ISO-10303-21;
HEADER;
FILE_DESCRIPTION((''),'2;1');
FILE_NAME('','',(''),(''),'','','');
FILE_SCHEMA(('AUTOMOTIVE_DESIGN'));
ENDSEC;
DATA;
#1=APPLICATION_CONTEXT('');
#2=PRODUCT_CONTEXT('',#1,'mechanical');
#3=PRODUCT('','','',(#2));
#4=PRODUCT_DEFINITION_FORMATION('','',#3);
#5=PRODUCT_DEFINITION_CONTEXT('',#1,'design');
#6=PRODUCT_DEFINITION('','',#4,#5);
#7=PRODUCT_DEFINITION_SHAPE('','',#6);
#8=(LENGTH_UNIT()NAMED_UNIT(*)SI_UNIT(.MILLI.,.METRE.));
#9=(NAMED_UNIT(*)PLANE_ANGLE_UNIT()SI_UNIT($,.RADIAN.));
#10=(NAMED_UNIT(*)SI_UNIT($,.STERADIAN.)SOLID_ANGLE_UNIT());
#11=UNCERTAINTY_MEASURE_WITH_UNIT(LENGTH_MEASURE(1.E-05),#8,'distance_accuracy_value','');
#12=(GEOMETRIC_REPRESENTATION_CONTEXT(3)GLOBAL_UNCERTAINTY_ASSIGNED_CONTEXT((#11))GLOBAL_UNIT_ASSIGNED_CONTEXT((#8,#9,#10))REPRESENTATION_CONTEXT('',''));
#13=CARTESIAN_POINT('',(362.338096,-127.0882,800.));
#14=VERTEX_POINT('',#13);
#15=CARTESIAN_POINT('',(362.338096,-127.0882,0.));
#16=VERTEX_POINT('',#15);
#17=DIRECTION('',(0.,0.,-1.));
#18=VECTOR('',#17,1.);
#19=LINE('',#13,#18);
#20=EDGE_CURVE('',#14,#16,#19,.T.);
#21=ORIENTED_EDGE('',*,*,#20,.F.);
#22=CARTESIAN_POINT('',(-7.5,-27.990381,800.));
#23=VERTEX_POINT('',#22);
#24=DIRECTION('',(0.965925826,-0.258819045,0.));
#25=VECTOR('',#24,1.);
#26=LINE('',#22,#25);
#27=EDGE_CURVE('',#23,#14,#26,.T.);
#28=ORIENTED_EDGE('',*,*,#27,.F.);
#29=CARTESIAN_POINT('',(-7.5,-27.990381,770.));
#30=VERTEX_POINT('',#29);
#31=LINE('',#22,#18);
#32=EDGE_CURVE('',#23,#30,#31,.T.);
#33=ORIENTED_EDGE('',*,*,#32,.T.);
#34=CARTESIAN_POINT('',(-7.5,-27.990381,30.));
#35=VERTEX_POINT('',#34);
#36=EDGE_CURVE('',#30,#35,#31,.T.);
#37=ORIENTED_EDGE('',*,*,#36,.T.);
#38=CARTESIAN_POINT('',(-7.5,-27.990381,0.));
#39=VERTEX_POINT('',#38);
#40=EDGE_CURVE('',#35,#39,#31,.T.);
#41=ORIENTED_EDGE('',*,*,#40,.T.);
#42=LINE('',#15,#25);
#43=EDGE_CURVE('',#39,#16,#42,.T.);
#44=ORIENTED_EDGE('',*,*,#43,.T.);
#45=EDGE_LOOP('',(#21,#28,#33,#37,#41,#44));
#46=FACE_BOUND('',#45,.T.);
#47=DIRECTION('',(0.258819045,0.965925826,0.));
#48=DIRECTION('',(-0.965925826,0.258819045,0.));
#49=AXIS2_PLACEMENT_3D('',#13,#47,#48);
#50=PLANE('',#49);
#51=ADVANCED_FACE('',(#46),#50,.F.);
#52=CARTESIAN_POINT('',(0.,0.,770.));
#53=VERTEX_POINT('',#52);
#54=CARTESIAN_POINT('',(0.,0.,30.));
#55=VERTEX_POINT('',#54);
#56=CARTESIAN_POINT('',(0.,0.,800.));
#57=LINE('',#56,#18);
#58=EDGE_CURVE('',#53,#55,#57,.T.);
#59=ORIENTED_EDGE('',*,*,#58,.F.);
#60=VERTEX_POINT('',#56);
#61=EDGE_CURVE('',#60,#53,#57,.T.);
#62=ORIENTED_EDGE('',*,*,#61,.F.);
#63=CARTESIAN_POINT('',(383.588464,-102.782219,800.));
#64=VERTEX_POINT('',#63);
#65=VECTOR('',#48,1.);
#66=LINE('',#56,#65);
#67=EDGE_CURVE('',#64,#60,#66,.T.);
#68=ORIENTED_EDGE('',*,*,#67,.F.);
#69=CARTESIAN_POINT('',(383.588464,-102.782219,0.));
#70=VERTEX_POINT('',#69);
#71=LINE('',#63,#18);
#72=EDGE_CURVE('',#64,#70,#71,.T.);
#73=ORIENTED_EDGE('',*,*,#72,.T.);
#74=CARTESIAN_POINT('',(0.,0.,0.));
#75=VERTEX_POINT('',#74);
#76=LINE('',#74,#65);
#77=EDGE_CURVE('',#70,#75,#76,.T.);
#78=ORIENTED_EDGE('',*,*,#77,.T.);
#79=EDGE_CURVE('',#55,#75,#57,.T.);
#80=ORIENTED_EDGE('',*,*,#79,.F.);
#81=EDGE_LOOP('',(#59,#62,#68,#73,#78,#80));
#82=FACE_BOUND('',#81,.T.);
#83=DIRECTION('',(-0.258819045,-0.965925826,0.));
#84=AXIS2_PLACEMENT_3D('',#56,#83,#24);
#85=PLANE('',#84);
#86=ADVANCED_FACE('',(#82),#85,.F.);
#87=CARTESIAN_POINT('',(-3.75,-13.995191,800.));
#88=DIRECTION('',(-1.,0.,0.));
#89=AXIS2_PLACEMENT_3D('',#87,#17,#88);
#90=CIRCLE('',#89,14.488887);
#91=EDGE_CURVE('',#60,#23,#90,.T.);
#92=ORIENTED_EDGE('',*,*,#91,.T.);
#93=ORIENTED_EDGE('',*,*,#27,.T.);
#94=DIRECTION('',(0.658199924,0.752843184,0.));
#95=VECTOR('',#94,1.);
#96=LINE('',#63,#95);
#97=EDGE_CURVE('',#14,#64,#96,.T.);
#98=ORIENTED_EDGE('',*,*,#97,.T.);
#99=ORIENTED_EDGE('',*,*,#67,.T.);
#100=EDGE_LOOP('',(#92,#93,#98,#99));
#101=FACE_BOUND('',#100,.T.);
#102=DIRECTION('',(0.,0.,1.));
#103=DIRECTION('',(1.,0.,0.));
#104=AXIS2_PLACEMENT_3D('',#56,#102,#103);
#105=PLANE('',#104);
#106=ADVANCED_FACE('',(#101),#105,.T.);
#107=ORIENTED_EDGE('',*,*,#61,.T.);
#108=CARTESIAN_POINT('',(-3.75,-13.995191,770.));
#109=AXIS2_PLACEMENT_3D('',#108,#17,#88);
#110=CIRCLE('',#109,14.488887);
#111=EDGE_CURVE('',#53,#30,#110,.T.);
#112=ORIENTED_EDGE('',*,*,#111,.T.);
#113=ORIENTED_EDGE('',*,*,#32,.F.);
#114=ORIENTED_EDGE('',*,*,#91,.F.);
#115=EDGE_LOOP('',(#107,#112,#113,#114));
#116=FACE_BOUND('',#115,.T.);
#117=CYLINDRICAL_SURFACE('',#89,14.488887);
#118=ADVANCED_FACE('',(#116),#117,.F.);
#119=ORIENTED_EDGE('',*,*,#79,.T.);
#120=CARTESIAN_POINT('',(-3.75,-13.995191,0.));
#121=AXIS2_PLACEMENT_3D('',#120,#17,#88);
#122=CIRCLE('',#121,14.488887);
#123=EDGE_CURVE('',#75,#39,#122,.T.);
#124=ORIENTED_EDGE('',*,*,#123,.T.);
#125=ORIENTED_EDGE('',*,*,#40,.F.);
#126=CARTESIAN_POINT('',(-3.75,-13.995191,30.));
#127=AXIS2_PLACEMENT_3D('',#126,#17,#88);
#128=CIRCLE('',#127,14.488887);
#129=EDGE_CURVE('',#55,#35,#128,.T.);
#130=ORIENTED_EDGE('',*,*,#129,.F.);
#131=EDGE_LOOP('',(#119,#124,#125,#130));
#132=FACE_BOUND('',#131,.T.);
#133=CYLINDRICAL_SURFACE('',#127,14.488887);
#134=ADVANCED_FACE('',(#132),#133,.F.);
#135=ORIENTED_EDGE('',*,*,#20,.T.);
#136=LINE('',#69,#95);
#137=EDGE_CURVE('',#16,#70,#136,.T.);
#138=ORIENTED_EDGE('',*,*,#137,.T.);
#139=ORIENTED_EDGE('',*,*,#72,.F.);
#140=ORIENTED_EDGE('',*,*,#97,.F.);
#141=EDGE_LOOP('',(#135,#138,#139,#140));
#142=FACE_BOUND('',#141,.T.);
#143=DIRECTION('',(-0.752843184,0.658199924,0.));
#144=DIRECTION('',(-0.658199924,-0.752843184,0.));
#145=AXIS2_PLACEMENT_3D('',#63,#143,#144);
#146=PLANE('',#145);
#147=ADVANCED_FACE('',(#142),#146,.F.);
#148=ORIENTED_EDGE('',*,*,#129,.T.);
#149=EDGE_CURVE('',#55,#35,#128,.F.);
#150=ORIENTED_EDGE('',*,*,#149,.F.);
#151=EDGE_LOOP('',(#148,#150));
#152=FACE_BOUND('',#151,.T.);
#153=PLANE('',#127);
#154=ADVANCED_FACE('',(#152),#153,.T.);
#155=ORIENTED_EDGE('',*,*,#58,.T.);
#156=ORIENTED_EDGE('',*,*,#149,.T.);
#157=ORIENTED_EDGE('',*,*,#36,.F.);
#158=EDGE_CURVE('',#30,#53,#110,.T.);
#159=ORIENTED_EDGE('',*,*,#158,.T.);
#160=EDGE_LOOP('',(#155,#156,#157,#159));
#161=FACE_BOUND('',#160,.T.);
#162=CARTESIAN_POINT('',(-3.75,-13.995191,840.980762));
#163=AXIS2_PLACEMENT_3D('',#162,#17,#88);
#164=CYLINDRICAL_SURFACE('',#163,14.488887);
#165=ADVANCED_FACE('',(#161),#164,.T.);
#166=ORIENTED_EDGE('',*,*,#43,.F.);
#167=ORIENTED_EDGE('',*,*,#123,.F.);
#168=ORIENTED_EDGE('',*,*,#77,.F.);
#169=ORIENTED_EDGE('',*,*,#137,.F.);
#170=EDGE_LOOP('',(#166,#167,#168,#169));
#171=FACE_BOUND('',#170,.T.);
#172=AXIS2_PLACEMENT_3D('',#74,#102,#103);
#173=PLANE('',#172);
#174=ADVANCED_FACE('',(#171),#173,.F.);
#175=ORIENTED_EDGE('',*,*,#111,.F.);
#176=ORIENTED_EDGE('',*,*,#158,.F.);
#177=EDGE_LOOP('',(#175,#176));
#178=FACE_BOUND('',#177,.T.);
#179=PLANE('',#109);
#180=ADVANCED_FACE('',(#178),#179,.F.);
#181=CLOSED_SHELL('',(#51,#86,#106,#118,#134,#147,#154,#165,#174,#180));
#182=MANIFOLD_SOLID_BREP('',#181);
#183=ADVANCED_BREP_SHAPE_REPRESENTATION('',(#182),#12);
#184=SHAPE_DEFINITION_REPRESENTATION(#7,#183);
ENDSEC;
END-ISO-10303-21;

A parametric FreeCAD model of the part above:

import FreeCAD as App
import Part
import Sketcher
Q = App.Units.Quantity


def add_polygon(sketch, points):
    """Adds a closed chain of lines whose ends are joined by coincident constraints."""
    first, n = sketch.GeometryCount, len(points)
    for a, b in zip(points, points[1:] + points[:1]):
        sketch.addGeometry(Part.LineSegment(App.Vector(*a, 0), App.Vector(*b, 0)), False)
    for i in range(n):
        sketch.addConstraint(Sketcher.Constraint("Coincident", first + i, 2, first + (i + 1) % n, 1))

doc = App.newDocument("Part")
body = doc.addObject("PartDesign::Body", "Body")

# Sketch on XY plane
sketch1 = doc.addObject("Sketcher::SketchObject", "Sketch")
body.addObject(sketch1)
sketch1.AttachmentSupport = (doc.XY_Plane, [""])
sketch1.MapMode = "FlatFace"
add_polygon(sketch1, [(384, -103), (0, 0), (-8, -28), (0, -30), (362, -127)])  # lines 0-4
sketch1.addConstraint([
    Sketcher.Constraint("Coincident", 0, 2, -1, 1),
    Sketcher.Constraint("PointOnObject", 2, 2, -2),
    Sketcher.Constraint("Perpendicular", 0, 1),
    Sketcher.Constraint("Perpendicular", 1, 2),
    Sketcher.Constraint("Parallel", 2, 3),
    Sketcher.Constraint("Angle", 0, Q("165 deg")),
    Sketcher.Constraint("DistanceY", 2, 2, -1, 1, Q("30 mm")),
    Sketcher.Constraint("Distance", 0, Q("397.12 mm")),
    Sketcher.Constraint("Distance", 3, Q("375.12 mm")),
])
pad1 = doc.addObject("PartDesign::Pad", "Pad")
body.addObject(pad1)
pad1.Profile = sketch1
pad1.Length = 800

# Sketch on XY plane
sketch2 = doc.addObject("Sketcher::SketchObject", "Sketch001")
body.addObject(sketch2)
sketch2.AttachmentSupport = (doc.XY_Plane, [""])
sketch2.MapMode = "FlatFace"
sketch2.addGeometry(Part.Circle(App.Vector(-4, -14, 0), App.Vector(0, 0, 1), 14), False)
sketch2.addConstraint([
    Sketcher.Constraint("DistanceX", 0, 3, -1, 1, Q("3.75 mm")),
    Sketcher.Constraint("Diameter", 0, Q("28.977775 mm")),
    Sketcher.Constraint("DistanceY", 0, 3, -1, 1, Q("13.995191 mm")),
])
pad2 = doc.addObject("PartDesign::Pad", "Pad001")
body.addObject(pad2)
pad2.Profile = sketch2
pad2.Length = 800

# Sketch on XY plane
sketch3 = doc.addObject("Sketcher::SketchObject", "Sketch002")
body.addObject(sketch3)
sketch3.AttachmentSupport = (doc.XY_Plane, [""])
sketch3.MapMode = "FlatFace"
sketch3.addGeometry(Part.Circle(App.Vector(-4, -14, 0), App.Vector(0, 0, 1), 14), False)
sketch3.addConstraint([
    Sketcher.Constraint("DistanceX", 0, 3, -1, 1, Q("3.75 mm")),
    Sketcher.Constraint("Diameter", 0, Q("28.977775 mm")),
    Sketcher.Constraint("DistanceY", 0, 3, -1, 1, Q("13.995191 mm")),
])
pocket1 = doc.addObject("PartDesign::Pocket", "Pocket")
body.addObject(pocket1)
pocket1.Profile = sketch3
pocket1.Length = 30
pocket1.Reversed = True
doc.recompute()

linearpattern = doc.addObject("PartDesign::LinearPattern", "LinearPattern")
body.addObject(linearpattern)
linearpattern.Originals = [pocket1]
linearpattern.Direction = (doc.Z_Axis, [""])
linearpattern.Mode = "offset"
linearpattern.Offset = 770
linearpattern.Occurrences = 2
body.Tip = linearpattern

doc.recompute()
